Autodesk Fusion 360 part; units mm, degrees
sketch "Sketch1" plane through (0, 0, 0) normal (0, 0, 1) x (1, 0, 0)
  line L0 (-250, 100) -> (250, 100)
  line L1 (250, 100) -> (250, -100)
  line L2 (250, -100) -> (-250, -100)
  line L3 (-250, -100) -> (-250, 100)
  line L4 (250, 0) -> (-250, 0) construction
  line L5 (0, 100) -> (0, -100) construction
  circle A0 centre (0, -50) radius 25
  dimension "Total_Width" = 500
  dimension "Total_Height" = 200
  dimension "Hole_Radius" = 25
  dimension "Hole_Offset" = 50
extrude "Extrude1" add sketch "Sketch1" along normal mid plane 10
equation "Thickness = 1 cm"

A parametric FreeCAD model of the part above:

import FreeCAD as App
import Part
import Sketcher

V = App.Vector


def add_polygon(sketch, points):
    """Adds a closed chain of lines whose ends are joined by coincident constraints."""
    first, n = sketch.GeometryCount, len(points)
    for a, b in zip(points, points[1:] + points[:1]):
        sketch.addGeometry(Part.LineSegment(App.Vector(*a, 0), App.Vector(*b, 0)), False)
    for i in range(n):
        sketch.addConstraint(Sketcher.Constraint("Coincident", first + i, 2, first + (i + 1) % n, 1))

doc = App.newDocument("Part")
params = doc.addObject("Spreadsheet::Sheet", "Params")
for row, (alias, value) in enumerate([
    ("sketch1_diameter", "50 mm"),
    ("sketch1_width", "500 mm"),
    ("sketch1_height", "200 mm"),
    ("pad1_length", "10 mm"),
], start=1):
    params.set(f"A{row}", alias)
    params.set(f"B{row}", "=" + value)
    params.setAlias(f"B{row}", alias)

body = doc.addObject("PartDesign::Body", "Body")

# Sketch on XY plane
sketch1 = body.newObject("Sketcher::SketchObject", "Sketch")
sketch1.AttachmentSupport = (doc.getObject("XY_Plane"), [""])
sketch1.MapMode = "FlatFace"
add_polygon(sketch1, [(250, 100), (-250, 100), (-250, -100), (250, -100)])  # lines 0-3
sketch1.addGeometry(Part.Circle(V(0, -50, 0), V(0, 0, 1), 25), False)  # 4
sketch1.addConstraint([
    Sketcher.Constraint("Horizontal", 0),
    Sketcher.Constraint("Vertical", 1),
    Sketcher.Constraint("Horizontal", 2),
    Sketcher.Constraint("Vertical", 3),
    Sketcher.Constraint("Symmetric", 0, 2, 2, 2, -1, 1),
    Sketcher.Constraint("PointOnObject", 4, 3, -2),
    Sketcher.Constraint("Diameter", 4, 50.0),
    Sketcher.Constraint("DistanceX", 0, 2, 0, 1, 500.0),
    Sketcher.Constraint("DistanceY", 1, 2, 1, 1, 200.0),
    Sketcher.Constraint("DistanceY", 4, 3, -1, 1, 50.0),
])
sketch1.setExpression("Constraints[10]", "Params.sketch1_diameter")
sketch1.setExpression("Constraints[11]", "Params.sketch1_width")
sketch1.setExpression("Constraints[12]", "Params.sketch1_height")
pad1 = body.newObject("PartDesign::Pad", "Pad")
pad1.Profile = sketch1
pad1.setExpression("Length", "Params.pad1_length")
pad1.Midplane = True

doc.recompute()
